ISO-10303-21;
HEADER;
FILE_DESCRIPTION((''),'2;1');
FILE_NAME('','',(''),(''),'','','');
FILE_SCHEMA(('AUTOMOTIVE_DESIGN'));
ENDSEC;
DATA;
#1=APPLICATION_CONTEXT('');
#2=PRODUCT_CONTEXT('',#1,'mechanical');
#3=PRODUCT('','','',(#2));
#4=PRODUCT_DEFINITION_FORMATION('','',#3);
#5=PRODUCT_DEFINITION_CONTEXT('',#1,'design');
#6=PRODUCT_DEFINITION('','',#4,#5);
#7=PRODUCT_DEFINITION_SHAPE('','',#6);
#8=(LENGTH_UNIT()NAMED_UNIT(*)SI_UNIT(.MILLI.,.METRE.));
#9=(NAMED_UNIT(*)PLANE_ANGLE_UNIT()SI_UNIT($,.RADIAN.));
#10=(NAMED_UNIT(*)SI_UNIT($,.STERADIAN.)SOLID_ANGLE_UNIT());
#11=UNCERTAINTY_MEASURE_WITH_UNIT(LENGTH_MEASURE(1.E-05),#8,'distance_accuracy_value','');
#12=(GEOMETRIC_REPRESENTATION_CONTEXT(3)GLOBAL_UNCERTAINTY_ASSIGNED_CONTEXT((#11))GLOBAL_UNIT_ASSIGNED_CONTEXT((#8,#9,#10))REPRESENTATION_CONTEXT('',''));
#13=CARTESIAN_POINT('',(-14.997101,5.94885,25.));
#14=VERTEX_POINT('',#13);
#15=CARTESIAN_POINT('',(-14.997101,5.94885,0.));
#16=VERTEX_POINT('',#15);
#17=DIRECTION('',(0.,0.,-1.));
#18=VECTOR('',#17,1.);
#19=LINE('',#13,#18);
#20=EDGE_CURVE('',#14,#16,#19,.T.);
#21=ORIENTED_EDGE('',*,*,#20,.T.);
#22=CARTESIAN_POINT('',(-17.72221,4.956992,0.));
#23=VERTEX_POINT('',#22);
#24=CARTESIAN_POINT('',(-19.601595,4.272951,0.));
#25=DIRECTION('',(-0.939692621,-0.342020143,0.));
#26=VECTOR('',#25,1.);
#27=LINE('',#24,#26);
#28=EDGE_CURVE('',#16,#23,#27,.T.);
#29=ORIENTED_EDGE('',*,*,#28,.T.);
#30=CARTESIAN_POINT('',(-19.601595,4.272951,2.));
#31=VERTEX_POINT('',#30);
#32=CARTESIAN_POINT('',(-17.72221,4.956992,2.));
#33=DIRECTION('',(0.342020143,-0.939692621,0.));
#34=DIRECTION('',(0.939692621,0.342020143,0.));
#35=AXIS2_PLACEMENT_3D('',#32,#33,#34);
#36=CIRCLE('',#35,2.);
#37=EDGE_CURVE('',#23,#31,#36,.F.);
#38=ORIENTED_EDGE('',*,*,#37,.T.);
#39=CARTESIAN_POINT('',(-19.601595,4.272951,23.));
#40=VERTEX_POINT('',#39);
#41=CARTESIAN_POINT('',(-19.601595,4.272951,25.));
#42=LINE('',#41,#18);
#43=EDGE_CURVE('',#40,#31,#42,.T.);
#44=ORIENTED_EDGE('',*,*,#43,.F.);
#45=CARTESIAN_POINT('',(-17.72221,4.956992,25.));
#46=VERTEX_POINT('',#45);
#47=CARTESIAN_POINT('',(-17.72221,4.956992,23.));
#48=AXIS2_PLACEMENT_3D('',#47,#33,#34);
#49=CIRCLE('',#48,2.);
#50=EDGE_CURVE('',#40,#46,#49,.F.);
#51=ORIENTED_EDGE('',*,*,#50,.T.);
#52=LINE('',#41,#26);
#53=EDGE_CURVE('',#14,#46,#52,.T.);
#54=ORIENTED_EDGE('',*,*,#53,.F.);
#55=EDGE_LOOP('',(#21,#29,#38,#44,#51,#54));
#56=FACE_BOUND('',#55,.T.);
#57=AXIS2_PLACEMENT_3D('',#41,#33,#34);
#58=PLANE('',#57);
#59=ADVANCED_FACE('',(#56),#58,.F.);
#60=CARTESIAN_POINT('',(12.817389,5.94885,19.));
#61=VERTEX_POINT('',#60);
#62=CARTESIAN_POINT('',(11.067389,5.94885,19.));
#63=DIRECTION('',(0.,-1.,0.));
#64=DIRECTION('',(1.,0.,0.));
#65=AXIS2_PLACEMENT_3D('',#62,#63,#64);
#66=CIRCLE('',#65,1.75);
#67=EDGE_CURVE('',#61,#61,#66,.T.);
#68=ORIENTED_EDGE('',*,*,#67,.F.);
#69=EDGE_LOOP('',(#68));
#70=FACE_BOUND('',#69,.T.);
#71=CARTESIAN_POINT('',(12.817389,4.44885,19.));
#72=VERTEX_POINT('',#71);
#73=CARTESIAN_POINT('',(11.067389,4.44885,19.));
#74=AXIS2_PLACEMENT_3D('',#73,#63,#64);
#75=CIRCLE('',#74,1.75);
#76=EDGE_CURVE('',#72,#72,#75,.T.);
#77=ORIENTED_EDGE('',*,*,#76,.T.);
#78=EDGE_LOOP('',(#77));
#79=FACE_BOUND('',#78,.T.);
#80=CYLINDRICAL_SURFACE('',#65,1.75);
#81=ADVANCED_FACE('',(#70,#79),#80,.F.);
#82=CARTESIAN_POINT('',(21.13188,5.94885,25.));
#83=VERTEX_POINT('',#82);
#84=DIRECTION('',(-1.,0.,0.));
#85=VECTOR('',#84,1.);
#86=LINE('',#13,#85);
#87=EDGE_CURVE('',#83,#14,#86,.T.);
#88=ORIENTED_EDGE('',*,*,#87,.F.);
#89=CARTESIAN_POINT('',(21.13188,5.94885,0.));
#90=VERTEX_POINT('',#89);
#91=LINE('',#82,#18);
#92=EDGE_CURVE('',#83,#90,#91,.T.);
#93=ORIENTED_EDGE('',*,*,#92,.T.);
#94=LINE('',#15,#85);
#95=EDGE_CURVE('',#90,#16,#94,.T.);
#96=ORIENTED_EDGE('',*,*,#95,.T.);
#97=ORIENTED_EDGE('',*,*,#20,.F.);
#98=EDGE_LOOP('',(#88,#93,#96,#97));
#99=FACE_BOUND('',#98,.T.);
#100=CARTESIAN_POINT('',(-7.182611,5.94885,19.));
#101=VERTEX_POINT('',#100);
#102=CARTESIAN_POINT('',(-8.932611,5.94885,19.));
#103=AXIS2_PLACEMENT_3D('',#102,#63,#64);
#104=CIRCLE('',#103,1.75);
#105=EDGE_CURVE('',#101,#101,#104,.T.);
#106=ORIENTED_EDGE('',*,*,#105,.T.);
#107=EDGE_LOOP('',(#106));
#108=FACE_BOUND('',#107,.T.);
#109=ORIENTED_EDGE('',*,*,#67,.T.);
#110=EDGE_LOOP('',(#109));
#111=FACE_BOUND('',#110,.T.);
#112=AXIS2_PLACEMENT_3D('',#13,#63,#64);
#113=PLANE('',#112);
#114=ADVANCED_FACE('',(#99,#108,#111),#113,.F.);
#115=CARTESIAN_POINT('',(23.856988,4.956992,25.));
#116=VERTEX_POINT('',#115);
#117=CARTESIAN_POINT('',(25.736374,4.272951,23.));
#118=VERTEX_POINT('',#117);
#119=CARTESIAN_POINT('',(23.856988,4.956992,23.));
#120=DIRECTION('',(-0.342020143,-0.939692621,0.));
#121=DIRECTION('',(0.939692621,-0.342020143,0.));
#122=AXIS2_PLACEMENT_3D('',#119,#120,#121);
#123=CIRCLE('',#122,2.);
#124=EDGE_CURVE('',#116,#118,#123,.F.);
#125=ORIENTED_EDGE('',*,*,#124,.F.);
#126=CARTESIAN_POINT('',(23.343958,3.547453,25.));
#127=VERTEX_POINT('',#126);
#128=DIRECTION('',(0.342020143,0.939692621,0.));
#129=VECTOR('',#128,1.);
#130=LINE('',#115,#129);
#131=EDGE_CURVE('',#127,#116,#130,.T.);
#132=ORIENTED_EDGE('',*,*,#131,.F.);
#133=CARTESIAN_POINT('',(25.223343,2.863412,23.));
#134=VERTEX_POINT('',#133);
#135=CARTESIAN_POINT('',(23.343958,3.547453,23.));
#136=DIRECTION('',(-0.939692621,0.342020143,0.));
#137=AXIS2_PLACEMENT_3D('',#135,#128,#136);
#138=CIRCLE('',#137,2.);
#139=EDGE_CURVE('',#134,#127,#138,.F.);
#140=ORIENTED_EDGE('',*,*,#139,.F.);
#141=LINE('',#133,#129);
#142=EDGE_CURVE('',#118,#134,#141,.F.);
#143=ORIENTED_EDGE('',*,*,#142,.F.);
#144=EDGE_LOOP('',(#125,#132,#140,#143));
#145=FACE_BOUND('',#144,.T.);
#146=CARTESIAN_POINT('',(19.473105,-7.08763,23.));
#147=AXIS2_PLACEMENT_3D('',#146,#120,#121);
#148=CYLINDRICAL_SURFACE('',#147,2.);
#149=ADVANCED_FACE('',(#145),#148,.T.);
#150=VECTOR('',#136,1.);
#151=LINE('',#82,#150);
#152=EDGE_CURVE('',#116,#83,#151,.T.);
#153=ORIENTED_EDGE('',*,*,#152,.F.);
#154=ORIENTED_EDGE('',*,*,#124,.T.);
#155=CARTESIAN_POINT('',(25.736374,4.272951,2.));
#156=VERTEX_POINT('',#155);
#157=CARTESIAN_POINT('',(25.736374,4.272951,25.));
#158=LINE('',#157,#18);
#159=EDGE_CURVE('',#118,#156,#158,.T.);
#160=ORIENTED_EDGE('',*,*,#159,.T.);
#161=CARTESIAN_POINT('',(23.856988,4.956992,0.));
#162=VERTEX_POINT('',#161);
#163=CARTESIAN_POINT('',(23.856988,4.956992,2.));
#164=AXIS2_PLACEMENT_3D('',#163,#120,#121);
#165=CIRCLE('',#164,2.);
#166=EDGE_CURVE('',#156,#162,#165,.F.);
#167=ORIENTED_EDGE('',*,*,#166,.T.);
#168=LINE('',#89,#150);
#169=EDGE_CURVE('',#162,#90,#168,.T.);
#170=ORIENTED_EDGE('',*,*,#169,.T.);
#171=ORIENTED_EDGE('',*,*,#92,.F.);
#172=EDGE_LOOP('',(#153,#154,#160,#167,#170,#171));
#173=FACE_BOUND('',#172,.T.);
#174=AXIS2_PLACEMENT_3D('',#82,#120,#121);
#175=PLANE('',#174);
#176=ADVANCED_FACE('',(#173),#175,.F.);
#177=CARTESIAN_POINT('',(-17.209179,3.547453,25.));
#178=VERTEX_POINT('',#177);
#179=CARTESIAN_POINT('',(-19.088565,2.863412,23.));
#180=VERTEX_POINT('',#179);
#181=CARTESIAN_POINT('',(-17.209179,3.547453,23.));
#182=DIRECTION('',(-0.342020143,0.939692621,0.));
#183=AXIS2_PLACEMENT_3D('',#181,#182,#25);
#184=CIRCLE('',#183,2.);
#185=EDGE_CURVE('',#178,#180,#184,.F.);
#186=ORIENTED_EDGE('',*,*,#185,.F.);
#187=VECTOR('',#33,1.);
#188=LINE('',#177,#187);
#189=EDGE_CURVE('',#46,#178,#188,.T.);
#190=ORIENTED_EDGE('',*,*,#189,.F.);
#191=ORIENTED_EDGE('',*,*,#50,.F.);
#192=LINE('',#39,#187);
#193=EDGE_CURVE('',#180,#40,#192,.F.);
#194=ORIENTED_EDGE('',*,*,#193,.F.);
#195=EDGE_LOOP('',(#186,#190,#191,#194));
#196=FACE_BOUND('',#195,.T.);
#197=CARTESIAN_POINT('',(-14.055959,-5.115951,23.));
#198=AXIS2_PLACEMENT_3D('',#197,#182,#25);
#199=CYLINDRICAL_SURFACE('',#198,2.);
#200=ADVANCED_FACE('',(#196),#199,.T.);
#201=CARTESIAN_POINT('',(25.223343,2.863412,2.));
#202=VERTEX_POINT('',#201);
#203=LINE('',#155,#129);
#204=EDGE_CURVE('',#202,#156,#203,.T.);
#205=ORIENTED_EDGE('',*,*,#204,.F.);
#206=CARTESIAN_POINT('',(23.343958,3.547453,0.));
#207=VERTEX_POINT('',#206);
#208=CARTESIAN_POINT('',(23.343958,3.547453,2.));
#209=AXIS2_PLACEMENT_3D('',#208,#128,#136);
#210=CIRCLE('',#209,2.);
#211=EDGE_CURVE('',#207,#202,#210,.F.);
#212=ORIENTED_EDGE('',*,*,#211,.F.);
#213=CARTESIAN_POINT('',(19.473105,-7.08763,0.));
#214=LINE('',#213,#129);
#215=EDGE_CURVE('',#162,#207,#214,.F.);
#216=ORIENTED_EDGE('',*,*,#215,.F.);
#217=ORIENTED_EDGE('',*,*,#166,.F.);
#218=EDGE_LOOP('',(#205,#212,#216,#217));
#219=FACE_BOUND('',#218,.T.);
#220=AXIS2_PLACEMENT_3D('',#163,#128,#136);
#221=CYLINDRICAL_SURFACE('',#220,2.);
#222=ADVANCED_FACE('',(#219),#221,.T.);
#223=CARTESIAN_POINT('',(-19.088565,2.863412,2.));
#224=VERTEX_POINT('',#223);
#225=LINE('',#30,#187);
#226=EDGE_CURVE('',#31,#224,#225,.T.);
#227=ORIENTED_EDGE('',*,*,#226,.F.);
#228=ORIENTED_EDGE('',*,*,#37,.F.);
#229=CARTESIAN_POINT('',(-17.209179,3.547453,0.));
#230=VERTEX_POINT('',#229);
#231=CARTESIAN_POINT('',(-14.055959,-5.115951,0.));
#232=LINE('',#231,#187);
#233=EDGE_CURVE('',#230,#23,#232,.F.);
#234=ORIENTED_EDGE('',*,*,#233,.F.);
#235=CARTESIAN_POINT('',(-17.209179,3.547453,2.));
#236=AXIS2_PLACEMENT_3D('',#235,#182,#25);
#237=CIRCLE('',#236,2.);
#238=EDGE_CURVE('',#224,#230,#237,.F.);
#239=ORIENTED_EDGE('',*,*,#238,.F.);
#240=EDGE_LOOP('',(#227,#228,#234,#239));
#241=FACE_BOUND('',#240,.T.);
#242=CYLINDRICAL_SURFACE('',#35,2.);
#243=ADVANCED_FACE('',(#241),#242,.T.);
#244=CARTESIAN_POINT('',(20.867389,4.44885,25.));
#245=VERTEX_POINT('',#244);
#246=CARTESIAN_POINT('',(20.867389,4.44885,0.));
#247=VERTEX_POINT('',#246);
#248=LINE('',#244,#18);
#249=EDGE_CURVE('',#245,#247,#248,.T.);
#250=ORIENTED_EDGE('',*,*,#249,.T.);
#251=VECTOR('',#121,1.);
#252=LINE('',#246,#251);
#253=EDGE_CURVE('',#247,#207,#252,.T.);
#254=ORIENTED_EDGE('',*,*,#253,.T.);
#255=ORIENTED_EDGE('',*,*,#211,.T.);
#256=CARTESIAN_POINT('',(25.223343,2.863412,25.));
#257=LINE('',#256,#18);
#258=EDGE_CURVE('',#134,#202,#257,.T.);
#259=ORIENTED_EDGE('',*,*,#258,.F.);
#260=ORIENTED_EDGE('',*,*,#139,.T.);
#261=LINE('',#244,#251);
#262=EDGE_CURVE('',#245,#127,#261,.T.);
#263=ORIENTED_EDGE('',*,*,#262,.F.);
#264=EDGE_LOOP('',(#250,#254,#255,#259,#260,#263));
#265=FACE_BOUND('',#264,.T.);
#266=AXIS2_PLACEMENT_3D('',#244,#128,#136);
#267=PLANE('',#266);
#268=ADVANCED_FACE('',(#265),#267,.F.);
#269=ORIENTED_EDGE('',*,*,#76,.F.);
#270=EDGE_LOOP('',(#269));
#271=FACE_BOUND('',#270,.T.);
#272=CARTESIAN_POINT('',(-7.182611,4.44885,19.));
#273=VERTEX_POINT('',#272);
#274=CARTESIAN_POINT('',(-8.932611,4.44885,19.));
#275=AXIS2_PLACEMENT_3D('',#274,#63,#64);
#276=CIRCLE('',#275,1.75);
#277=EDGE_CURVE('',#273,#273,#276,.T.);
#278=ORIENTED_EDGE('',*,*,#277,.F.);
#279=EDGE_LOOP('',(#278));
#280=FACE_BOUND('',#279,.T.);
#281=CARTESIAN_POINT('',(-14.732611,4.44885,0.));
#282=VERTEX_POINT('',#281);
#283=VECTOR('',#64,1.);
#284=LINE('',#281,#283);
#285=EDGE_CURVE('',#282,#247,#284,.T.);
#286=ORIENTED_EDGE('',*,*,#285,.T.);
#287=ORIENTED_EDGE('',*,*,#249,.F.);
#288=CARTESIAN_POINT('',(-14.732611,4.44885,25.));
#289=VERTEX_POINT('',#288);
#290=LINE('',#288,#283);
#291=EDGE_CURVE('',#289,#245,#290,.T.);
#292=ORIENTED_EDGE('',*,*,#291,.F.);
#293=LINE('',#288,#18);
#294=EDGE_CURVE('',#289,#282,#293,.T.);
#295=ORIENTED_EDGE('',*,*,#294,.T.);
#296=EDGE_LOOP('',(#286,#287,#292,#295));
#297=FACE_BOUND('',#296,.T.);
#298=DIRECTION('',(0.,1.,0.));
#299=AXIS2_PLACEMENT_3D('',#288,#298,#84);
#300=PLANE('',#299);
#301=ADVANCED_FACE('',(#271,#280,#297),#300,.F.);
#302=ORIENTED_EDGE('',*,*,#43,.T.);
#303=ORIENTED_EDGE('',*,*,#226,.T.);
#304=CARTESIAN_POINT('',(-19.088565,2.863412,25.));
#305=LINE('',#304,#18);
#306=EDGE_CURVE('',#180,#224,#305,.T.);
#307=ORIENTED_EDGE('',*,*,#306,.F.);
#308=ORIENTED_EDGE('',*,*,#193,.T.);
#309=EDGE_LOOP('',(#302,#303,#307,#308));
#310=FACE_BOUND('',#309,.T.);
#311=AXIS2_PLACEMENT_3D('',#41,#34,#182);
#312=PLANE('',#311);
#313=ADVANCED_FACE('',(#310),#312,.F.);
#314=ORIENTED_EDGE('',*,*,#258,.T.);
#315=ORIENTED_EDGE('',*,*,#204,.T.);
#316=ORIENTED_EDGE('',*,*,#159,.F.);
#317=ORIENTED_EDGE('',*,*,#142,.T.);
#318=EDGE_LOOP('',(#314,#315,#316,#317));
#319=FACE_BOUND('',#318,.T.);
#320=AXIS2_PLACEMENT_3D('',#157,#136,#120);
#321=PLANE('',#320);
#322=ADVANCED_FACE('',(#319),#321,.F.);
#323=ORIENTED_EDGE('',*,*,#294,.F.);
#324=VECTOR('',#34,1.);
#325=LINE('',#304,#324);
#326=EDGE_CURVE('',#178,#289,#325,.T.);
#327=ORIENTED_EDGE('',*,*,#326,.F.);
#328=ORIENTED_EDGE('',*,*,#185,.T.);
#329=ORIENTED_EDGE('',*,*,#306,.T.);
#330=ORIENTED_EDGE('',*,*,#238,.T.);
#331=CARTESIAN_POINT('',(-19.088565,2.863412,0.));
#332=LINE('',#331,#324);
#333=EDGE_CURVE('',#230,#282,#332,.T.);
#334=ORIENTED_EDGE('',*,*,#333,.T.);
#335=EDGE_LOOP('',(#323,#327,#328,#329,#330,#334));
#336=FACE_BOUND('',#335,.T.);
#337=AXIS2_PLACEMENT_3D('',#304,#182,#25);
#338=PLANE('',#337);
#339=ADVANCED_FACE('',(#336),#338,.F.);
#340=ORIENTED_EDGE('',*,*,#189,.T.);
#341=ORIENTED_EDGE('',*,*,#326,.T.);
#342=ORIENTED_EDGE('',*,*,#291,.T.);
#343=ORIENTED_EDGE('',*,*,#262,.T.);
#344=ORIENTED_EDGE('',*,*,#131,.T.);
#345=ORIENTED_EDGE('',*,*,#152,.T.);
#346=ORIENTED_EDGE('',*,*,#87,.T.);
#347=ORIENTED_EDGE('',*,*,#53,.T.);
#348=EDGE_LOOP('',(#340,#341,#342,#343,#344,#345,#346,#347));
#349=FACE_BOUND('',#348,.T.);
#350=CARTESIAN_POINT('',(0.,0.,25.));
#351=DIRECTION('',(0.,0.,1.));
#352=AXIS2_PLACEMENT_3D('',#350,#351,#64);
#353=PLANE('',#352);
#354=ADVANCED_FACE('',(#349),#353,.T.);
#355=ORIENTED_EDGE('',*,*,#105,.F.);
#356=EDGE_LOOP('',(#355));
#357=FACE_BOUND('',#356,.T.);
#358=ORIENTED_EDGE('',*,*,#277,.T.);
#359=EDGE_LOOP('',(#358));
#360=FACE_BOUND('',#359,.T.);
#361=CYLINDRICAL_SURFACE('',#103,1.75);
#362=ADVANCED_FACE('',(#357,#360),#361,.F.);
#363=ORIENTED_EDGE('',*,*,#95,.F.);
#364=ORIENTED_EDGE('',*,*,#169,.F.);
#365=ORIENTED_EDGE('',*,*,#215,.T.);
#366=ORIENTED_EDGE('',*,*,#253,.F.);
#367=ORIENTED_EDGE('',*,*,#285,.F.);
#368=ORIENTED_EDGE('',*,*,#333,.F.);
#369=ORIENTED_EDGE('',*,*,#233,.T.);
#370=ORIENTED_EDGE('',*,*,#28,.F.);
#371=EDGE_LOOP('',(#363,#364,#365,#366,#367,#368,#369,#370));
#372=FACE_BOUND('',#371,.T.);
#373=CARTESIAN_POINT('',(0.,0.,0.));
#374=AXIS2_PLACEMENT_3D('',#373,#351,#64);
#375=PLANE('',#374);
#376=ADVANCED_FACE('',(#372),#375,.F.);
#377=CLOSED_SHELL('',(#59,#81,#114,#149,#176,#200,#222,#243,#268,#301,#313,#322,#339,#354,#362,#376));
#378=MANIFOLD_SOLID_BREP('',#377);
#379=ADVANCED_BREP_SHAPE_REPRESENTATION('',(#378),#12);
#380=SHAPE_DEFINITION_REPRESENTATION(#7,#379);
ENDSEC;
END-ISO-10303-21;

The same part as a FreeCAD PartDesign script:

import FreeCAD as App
import Part
import Sketcher
Q = App.Units.Quantity


def edges_at(feature, points):
    """Names of the edges that pass closest to the given points."""
    edges = feature.Shape.Edges
    near = lambda p: min(range(len(edges)), key=lambda i: edges[i].distToShape(Part.Vertex(*p))[0])
    return sorted({f"Edge{near(p) + 1}" for p in points})


def add_polygon(sketch, points):
    """Adds a closed chain of lines whose ends are joined by coincident constraints."""
    first, n = sketch.GeometryCount, len(points)
    for a, b in zip(points, points[1:] + points[:1]):
        sketch.addGeometry(Part.LineSegment(App.Vector(*a, 0), App.Vector(*b, 0)), False)
    for i in range(n):
        sketch.addConstraint(Sketcher.Constraint("Coincident", first + i, 2, first + (i + 1) % n, 1))

doc = App.newDocument("Part")
body = doc.addObject("PartDesign::Body", "Body")

# Sketch on XY plane
sketch1 = body.newObject("Sketcher::SketchObject", "Sketch")
sketch1.AttachmentSupport = (doc.getObject("XY_Plane"), [""])
sketch1.MapMode = "FlatFace"
add_polygon(sketch1, [(-15, 5.9), (-19.6, 4.3), (-19.1, 2.9), (-14.7, 4.4), (20.9, 4.4), (25.2, 2.9), (25.7, 4.3), (21.1, 5.9)])  # lines 0-7
sketch1.addConstraint([
    Sketcher.Constraint("Horizontal", 3),
    Sketcher.Constraint("Horizontal", 7),
    Sketcher.Constraint("Perpendicular", 0, 1),
    Sketcher.Constraint("Perpendicular", 1, 2),
    Sketcher.Constraint("Perpendicular", 4, 5),
    Sketcher.Constraint("Perpendicular", 5, 6),
    Sketcher.Constraint("Horizontal", 1, 2, 4, 2),
    Sketcher.Constraint("Horizontal", 0, 2, 5, 2),
    Sketcher.Constraint("Equal", 2, 4),
    Sketcher.Constraint("Angle", 0, Q("-160 deg")),
    Sketcher.Constraint("DistanceX", 3, 1, 3, 2, 35.6),
    Sketcher.Constraint("Distance", 0, 4.9),
    Sketcher.Constraint("Distance", 1, 1.5),
    Sketcher.Constraint("DistanceY", 3, 2, 6, 2, 1.5),
    Sketcher.Constraint("DistanceX", 7, 2, -1, 1, 14.997101),
    Sketcher.Constraint("DistanceY", -1, 1, 0, 2, 4.272951),
])
pad1 = body.newObject("PartDesign::Pad", "Pad")
pad1.Profile = sketch1
pad1.Length = 25

# Sketch on XZ plane
sketch2 = body.newObject("Sketcher::SketchObject", "Sketch001")
sketch2.AttachmentSupport = (doc.getObject("XZ_Plane"), [""])
sketch2.MapMode = "FlatFace"
sketch2.AttachmentOffset = App.Placement(App.Vector(0, 0, -4.44885), App.Rotation())
sketch2.addGeometry([
    Part.Circle(App.Vector(-8.9, 19, 0), App.Vector(0, 0, 1), 1.8),
    Part.Circle(App.Vector(11.1, 19, 0), App.Vector(0, 0, 1), 1.8),
], False)
sketch2.addConstraint([
    Sketcher.Constraint("Equal", 0, 1),
    Sketcher.Constraint("Horizontal", 0, 3, 1, 3),
    Sketcher.Constraint("Diameter", 0, 3.5),
    Sketcher.Constraint("DistanceY", -1, 1, 0, 3, 19.0),
    Sketcher.Constraint("DistanceX", 0, 3, 1, 3, 20.0),
    Sketcher.Constraint("DistanceX", 0, 3, -1, 1, 8.932611),
])
pocket1 = body.newObject("PartDesign::Pocket", "Pocket")
pocket1.Profile = sketch2
pocket1.Type = "ThroughAll"
doc.recompute()

fillet = body.newObject("PartDesign::Fillet", "Fillet")
fillet.Base = (pocket1, edges_at(pocket1, [
    (-19.345, 3.568, 0),
    (25.48, 3.568, 25),
    (-19.345, 3.568, 25),
    (25.48, 3.568, 0),
]))
fillet.Radius = 2

doc.recompute()
